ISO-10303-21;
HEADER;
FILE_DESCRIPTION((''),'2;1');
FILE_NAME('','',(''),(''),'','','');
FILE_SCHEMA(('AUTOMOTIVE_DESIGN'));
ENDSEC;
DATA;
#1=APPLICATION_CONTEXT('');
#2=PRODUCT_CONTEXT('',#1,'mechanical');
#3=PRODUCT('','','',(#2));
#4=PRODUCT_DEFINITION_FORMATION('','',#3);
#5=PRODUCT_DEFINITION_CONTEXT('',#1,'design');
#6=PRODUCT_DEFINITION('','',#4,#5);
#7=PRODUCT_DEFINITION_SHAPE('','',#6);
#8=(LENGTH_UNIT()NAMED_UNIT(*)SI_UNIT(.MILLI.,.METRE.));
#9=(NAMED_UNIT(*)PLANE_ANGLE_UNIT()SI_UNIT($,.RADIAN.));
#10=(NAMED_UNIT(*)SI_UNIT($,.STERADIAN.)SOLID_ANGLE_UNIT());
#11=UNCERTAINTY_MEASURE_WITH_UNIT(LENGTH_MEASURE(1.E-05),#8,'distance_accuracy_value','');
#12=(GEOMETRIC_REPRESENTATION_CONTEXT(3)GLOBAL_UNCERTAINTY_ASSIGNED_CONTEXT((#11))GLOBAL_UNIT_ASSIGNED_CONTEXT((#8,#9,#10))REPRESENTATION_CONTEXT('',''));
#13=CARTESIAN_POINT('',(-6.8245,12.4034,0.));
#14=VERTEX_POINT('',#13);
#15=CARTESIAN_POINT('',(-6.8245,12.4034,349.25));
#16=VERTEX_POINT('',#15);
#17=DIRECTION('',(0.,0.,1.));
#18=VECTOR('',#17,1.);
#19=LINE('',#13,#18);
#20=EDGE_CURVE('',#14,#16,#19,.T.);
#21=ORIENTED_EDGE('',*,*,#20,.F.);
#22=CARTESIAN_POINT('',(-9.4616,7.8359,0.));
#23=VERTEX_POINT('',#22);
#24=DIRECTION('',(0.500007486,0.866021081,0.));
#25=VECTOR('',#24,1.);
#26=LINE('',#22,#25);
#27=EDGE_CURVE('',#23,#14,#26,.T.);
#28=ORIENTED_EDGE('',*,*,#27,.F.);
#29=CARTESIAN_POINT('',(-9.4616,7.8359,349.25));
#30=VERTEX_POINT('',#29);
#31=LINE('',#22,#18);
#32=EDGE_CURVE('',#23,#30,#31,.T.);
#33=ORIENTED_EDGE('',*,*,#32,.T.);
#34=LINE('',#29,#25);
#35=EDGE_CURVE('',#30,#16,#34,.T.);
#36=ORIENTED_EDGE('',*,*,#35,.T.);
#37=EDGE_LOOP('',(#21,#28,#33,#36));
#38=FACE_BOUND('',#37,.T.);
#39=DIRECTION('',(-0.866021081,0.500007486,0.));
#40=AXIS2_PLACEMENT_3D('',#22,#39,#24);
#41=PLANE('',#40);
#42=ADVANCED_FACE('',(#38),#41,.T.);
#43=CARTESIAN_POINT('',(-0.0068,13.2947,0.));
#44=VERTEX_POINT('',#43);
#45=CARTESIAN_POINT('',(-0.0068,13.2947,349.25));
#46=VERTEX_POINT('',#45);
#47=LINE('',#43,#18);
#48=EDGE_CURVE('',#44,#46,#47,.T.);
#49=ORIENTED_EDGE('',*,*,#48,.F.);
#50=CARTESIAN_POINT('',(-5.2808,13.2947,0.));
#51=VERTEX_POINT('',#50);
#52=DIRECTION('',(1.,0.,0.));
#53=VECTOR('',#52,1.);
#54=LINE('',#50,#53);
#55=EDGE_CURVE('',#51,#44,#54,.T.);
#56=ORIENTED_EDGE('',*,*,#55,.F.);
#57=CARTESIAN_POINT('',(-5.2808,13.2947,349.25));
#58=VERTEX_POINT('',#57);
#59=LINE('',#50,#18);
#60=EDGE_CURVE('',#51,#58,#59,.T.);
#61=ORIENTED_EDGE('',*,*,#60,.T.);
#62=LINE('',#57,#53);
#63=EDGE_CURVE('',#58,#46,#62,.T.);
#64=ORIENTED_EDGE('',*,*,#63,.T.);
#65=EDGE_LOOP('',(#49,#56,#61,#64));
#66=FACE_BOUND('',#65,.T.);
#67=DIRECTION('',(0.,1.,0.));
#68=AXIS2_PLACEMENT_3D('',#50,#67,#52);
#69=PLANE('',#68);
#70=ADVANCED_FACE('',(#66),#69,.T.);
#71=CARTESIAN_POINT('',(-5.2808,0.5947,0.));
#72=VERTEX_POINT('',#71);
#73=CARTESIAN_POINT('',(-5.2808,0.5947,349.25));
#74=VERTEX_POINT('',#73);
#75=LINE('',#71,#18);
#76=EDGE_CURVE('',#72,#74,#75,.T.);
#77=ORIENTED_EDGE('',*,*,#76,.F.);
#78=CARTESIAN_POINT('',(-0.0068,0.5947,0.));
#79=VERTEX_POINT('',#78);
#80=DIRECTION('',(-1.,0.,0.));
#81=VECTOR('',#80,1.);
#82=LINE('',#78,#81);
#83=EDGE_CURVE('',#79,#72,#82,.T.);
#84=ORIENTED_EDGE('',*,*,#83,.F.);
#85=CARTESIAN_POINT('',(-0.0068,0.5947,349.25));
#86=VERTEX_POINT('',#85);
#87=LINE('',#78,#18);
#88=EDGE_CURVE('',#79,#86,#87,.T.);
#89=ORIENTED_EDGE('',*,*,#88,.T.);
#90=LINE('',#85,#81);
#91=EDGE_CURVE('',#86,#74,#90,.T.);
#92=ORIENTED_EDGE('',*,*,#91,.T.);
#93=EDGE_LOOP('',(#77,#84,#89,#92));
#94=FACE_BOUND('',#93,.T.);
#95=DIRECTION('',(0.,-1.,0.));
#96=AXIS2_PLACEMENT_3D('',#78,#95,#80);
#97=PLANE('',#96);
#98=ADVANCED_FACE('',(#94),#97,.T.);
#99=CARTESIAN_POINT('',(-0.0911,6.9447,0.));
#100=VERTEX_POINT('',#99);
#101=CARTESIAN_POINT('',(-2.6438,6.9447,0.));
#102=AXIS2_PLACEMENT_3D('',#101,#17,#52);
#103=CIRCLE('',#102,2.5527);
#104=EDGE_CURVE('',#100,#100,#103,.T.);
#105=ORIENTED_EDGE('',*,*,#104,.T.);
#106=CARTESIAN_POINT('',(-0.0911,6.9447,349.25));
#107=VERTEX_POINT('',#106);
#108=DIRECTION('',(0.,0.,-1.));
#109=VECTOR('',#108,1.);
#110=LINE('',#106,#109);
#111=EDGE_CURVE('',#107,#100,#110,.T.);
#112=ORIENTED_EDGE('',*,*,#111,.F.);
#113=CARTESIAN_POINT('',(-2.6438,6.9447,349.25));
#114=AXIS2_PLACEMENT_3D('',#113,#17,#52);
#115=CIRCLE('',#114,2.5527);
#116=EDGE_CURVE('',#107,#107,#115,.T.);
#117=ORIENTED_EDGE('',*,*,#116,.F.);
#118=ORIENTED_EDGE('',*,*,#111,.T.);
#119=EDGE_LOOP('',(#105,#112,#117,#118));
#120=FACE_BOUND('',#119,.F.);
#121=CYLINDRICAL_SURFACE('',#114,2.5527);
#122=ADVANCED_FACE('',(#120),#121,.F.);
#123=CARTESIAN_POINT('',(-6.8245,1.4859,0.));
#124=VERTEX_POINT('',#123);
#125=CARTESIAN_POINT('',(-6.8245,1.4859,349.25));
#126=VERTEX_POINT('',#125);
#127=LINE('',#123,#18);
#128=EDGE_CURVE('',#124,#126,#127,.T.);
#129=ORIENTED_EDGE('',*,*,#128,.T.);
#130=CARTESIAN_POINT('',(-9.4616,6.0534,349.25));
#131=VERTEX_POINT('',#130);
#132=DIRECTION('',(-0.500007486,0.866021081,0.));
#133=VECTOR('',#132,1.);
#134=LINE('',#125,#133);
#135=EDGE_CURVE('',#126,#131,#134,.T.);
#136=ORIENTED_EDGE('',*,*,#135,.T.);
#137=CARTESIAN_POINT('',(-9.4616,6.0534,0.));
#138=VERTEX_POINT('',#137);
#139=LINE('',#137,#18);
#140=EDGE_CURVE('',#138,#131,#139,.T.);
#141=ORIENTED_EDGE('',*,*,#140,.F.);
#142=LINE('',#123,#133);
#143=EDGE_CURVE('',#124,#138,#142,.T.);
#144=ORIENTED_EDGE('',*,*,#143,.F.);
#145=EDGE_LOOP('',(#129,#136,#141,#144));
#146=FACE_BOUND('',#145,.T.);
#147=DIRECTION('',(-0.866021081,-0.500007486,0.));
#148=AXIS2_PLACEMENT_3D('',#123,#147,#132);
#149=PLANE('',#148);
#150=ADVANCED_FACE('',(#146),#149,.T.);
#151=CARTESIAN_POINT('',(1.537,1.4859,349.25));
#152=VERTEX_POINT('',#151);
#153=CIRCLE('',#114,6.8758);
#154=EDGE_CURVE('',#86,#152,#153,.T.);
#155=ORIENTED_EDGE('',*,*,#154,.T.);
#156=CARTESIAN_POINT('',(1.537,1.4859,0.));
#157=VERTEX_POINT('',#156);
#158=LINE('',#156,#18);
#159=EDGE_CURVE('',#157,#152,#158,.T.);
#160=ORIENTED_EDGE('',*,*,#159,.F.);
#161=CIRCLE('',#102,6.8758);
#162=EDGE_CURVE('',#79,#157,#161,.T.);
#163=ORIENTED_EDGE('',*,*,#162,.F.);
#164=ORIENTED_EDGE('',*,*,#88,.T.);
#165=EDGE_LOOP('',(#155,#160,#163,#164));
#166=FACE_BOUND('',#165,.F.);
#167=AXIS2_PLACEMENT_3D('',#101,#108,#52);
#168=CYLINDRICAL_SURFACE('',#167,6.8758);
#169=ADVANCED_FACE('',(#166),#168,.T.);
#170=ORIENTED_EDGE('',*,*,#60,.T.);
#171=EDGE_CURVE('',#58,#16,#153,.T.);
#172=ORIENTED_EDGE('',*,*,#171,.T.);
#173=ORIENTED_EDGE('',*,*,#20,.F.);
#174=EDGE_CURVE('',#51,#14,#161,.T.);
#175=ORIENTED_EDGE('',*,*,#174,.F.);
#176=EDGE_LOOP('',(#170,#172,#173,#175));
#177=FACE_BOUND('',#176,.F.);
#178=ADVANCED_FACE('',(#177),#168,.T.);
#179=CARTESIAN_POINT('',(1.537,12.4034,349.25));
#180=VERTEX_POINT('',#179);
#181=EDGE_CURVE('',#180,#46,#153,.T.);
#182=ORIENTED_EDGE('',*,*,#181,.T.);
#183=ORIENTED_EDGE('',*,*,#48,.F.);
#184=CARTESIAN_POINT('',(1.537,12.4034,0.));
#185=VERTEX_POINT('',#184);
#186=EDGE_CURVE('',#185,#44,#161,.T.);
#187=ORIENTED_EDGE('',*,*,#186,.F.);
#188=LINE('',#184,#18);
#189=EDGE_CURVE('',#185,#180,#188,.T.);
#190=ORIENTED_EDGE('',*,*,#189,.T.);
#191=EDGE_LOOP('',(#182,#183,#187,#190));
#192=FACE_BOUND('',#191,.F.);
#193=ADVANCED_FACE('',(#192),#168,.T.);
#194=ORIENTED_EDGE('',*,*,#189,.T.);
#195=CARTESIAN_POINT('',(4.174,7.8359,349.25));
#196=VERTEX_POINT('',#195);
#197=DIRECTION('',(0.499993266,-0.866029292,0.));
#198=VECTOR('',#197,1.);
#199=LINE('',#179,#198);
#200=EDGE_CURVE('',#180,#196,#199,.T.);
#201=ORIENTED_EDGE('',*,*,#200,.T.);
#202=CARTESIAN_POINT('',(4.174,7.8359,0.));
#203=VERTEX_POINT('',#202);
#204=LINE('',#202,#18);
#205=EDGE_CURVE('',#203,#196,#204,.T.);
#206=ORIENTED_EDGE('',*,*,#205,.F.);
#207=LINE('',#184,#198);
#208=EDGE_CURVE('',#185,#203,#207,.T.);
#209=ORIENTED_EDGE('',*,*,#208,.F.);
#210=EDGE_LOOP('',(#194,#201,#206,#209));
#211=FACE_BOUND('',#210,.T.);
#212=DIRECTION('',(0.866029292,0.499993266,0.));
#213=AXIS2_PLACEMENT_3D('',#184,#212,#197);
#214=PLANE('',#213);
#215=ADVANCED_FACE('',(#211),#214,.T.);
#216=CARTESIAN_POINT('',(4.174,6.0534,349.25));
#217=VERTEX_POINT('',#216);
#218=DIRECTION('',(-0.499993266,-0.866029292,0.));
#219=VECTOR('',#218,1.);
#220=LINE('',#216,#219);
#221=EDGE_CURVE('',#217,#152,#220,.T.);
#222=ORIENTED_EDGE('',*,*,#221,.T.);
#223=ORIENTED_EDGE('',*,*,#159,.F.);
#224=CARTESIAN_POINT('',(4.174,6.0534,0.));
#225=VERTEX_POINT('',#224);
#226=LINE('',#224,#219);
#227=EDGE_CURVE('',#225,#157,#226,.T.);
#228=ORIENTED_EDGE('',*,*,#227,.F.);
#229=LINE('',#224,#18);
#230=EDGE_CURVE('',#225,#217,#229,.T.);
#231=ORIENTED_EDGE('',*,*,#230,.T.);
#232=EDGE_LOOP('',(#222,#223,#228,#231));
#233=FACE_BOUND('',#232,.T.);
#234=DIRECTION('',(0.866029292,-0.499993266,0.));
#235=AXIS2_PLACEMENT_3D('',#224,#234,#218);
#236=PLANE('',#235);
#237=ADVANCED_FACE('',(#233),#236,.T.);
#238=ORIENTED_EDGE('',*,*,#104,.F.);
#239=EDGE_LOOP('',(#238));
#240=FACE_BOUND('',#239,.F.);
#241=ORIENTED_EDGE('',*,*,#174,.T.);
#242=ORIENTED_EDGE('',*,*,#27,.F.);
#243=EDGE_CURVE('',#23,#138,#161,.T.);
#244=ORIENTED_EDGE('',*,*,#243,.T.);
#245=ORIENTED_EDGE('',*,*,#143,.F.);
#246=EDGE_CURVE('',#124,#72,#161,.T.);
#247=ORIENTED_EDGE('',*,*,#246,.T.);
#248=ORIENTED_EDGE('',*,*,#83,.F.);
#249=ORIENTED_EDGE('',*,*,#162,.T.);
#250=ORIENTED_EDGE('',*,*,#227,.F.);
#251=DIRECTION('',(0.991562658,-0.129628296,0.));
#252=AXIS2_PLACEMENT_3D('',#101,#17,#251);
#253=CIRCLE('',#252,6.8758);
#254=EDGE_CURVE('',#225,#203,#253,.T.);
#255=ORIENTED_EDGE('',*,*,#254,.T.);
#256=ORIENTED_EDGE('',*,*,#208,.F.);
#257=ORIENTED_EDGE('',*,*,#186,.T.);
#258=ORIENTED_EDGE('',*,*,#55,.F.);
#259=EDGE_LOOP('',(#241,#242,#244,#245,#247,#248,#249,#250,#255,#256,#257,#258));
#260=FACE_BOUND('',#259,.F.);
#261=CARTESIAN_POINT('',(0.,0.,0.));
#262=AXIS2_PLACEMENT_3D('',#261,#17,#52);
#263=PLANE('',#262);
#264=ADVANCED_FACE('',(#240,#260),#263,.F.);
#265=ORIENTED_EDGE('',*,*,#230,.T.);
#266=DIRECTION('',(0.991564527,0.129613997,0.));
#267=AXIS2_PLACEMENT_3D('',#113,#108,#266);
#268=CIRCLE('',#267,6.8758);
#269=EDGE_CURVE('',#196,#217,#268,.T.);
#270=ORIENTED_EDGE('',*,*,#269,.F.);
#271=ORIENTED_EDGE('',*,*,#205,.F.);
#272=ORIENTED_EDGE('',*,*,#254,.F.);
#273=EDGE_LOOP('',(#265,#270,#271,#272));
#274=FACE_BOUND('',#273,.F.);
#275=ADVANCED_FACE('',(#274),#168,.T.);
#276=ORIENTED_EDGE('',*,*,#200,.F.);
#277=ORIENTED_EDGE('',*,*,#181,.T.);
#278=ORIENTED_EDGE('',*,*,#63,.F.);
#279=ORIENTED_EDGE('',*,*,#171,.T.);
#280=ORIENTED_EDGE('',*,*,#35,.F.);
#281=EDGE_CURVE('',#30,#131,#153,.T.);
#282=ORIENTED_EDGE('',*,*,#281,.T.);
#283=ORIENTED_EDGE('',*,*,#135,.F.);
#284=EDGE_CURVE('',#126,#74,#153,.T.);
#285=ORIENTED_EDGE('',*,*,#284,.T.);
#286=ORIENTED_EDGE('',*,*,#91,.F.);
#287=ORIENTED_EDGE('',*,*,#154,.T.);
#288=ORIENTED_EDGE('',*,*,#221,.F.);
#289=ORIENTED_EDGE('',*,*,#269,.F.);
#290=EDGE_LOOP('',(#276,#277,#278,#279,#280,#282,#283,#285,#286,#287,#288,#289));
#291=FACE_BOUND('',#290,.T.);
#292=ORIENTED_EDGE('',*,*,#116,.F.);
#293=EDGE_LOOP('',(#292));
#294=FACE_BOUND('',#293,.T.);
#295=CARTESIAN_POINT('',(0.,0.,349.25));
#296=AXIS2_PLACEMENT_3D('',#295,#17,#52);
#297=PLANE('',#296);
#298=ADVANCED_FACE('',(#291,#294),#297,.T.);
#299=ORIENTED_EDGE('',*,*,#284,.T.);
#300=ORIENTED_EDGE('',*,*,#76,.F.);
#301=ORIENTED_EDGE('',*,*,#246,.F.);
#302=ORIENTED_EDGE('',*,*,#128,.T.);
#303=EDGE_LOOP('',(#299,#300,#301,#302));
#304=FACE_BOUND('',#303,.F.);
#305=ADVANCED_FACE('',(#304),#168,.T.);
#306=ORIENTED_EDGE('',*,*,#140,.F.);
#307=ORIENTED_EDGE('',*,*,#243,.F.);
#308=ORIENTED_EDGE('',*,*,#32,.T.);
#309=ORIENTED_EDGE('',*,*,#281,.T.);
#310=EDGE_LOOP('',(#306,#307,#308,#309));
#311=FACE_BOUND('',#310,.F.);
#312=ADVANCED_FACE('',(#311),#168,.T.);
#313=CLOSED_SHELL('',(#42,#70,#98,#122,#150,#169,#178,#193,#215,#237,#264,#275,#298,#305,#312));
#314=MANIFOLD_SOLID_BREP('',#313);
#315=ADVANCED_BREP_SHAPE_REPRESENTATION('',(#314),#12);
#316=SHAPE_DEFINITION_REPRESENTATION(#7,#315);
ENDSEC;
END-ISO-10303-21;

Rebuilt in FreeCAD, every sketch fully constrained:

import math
import FreeCAD as App
import Part
import Sketcher
from FreeCAD import Vector
Q = App.Units.Quantity

doc = App.newDocument("Part")
body = doc.addObject("PartDesign::Body", "Body")

# Sketch on XY plane
sketch1 = doc.addObject("Sketcher::SketchObject", "Sketch")
body.addObject(sketch1)
sketch1.AttachmentSupport = (doc.XY_Plane, [""])
sketch1.MapMode = "FlatFace"
sketch1.addGeometry(Part.ArcOfCircle(Part.Circle(Vector(-2.6438, 6.9447, 0), Vector(0, 0, 1), 6.8758), math.radians(-7.448114), math.radians(7.447287)), False)
sketch1.addGeometry(Part.LineSegment(Vector(4.174, 7.8359, 0), Vector(1.537, 12.4034, 0)), False)
sketch1.addGeometry(Part.ArcOfCircle(Part.Circle(Vector(-2.6438, 6.9447, 0), Vector(0, 0, 1), 6.8758), math.radians(52.551618), math.radians(67.448081)), False)
sketch1.addGeometry(Part.LineSegment(Vector(-0.0068, 13.2947, 0), Vector(-5.2808, 13.2947, 0)), False)
sketch1.addGeometry(Part.ArcOfCircle(Part.Circle(Vector(-2.6438, 6.9447, 0), Vector(0, 0, 1), 6.8758), math.radians(112.551919), math.radians(127.447721)), False)
sketch1.addGeometry(Part.LineSegment(Vector(-6.8245, 12.4034, 0), Vector(-9.4616, 7.8359, 0)), False)
sketch1.addGeometry(Part.ArcOfCircle(Part.Circle(Vector(-2.6438, 6.9447, 0), Vector(0, 0, 1), 6.8758), math.radians(172.552713), math.radians(187.448114)), False)
sketch1.addGeometry(Part.LineSegment(Vector(-9.4616, 6.0534, 0), Vector(-6.8245, 1.4859, 0)), False)
sketch1.addGeometry(Part.ArcOfCircle(Part.Circle(Vector(-2.6438, 6.9447, 0), Vector(0, 0, 1), 6.8758), math.radians(-127.447214), math.radians(-112.551919)), False)
sketch1.addGeometry(Part.LineSegment(Vector(-5.2808, 0.5947, 0), Vector(-0.0068, 0.5947, 0)), False)
sketch1.addGeometry(Part.ArcOfCircle(Part.Circle(Vector(-2.6438, 6.9447, 0), Vector(0, 0, 1), 6.8758), math.radians(-67.448081), math.radians(-52.552124)), False)
sketch1.addGeometry(Part.LineSegment(Vector(1.537, 1.4859, 0), Vector(4.174, 6.0534, 0)), False)
sketch1.addConstraint(Sketcher.Constraint("Coincident", 0, 2, 1, 1))
sketch1.addConstraint(Sketcher.Constraint("Coincident", 1, 2, 2, 1))
sketch1.addConstraint(Sketcher.Constraint("Coincident", 2, 2, 3, 1))
sketch1.addConstraint(Sketcher.Constraint("Coincident", 3, 2, 4, 1))
sketch1.addConstraint(Sketcher.Constraint("Coincident", 4, 2, 5, 1))
sketch1.addConstraint(Sketcher.Constraint("Coincident", 5, 2, 6, 1))
sketch1.addConstraint(Sketcher.Constraint("Coincident", 6, 2, 7, 1))
sketch1.addConstraint(Sketcher.Constraint("Coincident", 7, 2, 8, 1))
sketch1.addConstraint(Sketcher.Constraint("Coincident", 8, 2, 9, 1))
sketch1.addConstraint(Sketcher.Constraint("Coincident", 9, 2, 10, 1))
sketch1.addConstraint(Sketcher.Constraint("Coincident", 10, 2, 11, 1))
sketch1.addConstraint(Sketcher.Constraint("Coincident", 11, 2, 0, 1))
sketch1.addConstraint(Sketcher.Constraint("Horizontal", 3))
sketch1.addConstraint(Sketcher.Constraint("Horizontal", 9))
sketch1.addConstraint(Sketcher.Constraint("Coincident", 2, 3, 0, 3))
sketch1.addConstraint(Sketcher.Constraint("Coincident", 4, 3, 0, 3))
sketch1.addConstraint(Sketcher.Constraint("Coincident", 6, 3, 0, 3))
sketch1.addConstraint(Sketcher.Constraint("Coincident", 8, 3, 0, 3))
sketch1.addConstraint(Sketcher.Constraint("Coincident", 10, 3, 0, 3))
sketch1.addConstraint(Sketcher.Constraint("Equal", 0, 2))
sketch1.addConstraint(Sketcher.Constraint("Equal", 2, 4))
sketch1.addConstraint(Sketcher.Constraint("Equal", 4, 6))
sketch1.addConstraint(Sketcher.Constraint("Equal", 6, 8))
sketch1.addConstraint(Sketcher.Constraint("Equal", 8, 10))
sketch1.addConstraint(Sketcher.Constraint("Parallel", 1, 7))
sketch1.addConstraint(Sketcher.Constraint("Parallel", 5, 11))
sketch1.addConstraint(Sketcher.Constraint("Horizontal", 1, 2, 4, 2))
sketch1.addConstraint(Sketcher.Constraint("Horizontal", 0, 2, 5, 2))
sketch1.addConstraint(Sketcher.Constraint("Horizontal", 7, 2, 10, 2))
sketch1.addConstraint(Sketcher.Constraint("Vertical", 5, 2, 6, 2))
sketch1.addConstraint(Sketcher.Constraint("Vertical", 3, 2, 8, 2))
sketch1.addConstraint(Sketcher.Constraint("Radius", 0, Q("0.2707 in")))
sketch1.addConstraint(Sketcher.Constraint("Angle", 1, Q("119.9996 deg")))
sketch1.addConstraint(Sketcher.Constraint("DistanceY", 0, 3, 2, 2, Q("0.25 in")))
sketch1.addConstraint(Sketcher.Constraint("DistanceY", 10, 2, 0, 2, Q("0.25 in")))
sketch1.addConstraint(Sketcher.Constraint("DistanceY", -1, 1, 0, 2, Q("0.3085 in")))
sketch1.addConstraint(Sketcher.Constraint("DistanceX", -1, 1, 1, 2, Q("0.0605 in")))
pad1 = doc.addObject("PartDesign::Pad", "Pad")
body.addObject(pad1)
pad1.Profile = sketch1
pad1.Length = Q("13.75 in")

# Sketch on XY plane
sketch2 = doc.addObject("Sketcher::SketchObject", "Sketch001")
body.addObject(sketch2)
sketch2.AttachmentSupport = (doc.XY_Plane, [""])
sketch2.MapMode = "FlatFace"
sketch2.AttachmentOffset = App.Placement(Vector(0, 0, 13.75 * 25.4), App.Rotation())
sketch2.addGeometry(Part.Circle(Vector(-2.6438, 6.9447, 0), Vector(0, 0, 1), 2.5527), False)
sketch2.addConstraint(Sketcher.Constraint("Diameter", 0, Q("0.201 in")))
sketch2.addConstraint(Sketcher.Constraint("DistanceX", 0, 3, -1, 1, Q("2.6438 mm")))
sketch2.addConstraint(Sketcher.Constraint("DistanceY", -1, 1, 0, 3, Q("6.9447 mm")))
pocket1 = doc.addObject("PartDesign::Pocket", "Pocket")
body.addObject(pocket1)
pocket1.Profile = sketch2
pocket1.Length = Q("13.75 in")

doc.recompute()
